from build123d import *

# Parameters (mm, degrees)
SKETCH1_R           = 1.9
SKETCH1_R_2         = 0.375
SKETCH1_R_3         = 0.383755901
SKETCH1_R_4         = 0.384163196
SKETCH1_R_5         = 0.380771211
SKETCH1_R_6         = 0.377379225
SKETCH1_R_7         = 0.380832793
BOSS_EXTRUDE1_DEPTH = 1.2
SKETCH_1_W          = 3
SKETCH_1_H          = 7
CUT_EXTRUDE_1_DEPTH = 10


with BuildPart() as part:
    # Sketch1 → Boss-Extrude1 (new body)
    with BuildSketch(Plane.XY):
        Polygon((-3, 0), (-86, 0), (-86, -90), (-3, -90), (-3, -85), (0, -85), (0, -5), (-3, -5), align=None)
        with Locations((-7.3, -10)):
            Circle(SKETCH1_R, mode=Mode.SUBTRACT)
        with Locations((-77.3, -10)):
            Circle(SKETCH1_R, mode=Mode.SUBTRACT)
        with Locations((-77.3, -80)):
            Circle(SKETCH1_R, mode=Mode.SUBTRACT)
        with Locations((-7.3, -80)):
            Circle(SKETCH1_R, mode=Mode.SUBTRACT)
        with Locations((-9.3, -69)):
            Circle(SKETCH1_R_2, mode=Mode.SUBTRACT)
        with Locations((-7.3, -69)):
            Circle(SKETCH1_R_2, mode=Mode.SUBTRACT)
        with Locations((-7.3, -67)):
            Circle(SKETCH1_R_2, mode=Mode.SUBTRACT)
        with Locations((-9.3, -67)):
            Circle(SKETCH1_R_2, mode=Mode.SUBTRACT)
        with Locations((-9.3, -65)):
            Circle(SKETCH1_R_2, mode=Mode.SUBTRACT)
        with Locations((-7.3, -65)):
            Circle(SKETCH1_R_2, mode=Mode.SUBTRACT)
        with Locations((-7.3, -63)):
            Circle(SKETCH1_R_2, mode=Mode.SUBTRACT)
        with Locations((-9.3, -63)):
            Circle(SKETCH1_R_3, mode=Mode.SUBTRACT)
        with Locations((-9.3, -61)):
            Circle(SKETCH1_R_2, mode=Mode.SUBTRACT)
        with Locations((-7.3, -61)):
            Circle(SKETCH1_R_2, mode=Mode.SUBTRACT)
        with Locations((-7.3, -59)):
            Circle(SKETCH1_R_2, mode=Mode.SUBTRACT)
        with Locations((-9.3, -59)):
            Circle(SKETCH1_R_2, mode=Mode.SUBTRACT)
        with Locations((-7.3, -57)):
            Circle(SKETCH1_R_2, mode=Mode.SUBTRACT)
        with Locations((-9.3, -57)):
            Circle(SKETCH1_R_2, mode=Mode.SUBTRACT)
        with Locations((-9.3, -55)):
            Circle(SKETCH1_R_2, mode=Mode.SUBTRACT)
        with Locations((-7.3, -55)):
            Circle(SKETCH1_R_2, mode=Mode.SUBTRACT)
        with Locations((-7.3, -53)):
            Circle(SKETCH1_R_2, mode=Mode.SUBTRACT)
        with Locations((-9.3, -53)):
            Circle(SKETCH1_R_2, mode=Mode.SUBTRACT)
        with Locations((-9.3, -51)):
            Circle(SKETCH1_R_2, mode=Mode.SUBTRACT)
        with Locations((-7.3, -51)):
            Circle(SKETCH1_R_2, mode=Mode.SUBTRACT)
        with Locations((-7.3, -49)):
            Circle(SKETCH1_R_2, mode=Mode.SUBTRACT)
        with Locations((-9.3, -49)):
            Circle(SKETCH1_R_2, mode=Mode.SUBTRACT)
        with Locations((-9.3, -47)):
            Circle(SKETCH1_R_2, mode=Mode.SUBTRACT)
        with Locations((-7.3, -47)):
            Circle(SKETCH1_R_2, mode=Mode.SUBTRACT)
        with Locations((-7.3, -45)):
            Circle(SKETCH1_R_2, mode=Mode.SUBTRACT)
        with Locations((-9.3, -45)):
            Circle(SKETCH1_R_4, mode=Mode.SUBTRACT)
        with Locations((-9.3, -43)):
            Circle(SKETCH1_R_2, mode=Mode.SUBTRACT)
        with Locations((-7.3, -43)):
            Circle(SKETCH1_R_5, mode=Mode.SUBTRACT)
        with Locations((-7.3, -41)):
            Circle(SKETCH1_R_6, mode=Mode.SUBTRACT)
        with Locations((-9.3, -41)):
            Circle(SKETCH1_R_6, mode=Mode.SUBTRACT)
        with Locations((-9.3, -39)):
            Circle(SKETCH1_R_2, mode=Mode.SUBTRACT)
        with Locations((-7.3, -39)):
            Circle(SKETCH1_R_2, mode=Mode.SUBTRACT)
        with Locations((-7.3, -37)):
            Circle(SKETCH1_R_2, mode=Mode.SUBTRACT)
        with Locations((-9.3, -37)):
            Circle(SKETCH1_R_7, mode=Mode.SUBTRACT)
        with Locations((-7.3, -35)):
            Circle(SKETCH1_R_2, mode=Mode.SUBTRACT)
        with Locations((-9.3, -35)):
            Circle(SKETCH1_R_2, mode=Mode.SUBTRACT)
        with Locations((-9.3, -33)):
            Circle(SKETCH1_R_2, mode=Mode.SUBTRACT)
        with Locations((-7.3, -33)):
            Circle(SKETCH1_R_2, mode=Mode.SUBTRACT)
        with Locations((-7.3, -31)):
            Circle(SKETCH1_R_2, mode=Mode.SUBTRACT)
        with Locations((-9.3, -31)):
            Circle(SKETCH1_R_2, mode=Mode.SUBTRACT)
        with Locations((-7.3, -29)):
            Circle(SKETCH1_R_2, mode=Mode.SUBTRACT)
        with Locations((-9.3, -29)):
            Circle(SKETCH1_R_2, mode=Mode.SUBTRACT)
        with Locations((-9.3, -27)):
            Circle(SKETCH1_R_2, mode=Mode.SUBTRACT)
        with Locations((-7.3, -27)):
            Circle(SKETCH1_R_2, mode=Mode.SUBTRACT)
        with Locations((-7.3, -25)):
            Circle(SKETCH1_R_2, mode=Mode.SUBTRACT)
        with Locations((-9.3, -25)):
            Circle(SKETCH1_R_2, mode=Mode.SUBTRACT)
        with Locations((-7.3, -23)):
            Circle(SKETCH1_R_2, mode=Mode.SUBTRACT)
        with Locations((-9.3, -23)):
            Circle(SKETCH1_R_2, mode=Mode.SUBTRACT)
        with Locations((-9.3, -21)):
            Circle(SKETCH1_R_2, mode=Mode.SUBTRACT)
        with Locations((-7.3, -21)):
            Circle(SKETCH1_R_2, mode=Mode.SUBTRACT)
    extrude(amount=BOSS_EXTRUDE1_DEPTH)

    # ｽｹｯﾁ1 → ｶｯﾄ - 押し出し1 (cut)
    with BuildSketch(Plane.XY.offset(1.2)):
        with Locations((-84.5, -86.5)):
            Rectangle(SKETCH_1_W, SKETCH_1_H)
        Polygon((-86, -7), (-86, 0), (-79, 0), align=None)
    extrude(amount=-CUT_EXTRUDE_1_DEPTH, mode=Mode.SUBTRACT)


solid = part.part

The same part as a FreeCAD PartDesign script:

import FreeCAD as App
import Part
import Sketcher

V = App.Vector


def add_polygon(sketch, points):
    """Adds a closed chain of lines whose ends are joined by coincident constraints."""
    first, n = sketch.GeometryCount, len(points)
    for a, b in zip(points, points[1:] + points[:1]):
        sketch.addGeometry(Part.LineSegment(App.Vector(*a, 0), App.Vector(*b, 0)), False)
    for i in range(n):
        sketch.addConstraint(Sketcher.Constraint("Coincident", first + i, 2, first + (i + 1) % n, 1))

doc = App.newDocument("Part")
body = doc.addObject("PartDesign::Body", "Body")

sketch1 = body.newObject("Sketcher::SketchObject", "Sketch")
sketch1.AttachmentSupport = (doc.getObject("XY_Plane"), [""])
sketch1.MapMode = "FlatFace"
add_polygon(sketch1, [(-3, 0), (-86, 0), (-86, -90), (-3, -90), (-3, -85), (0, -85), (0, -5), (-3, -5)])
sketch1.addGeometry(Part.Circle(V(-77.3, -80, 0), V(0, 0, 1), 1.9), False)
sketch1.addGeometry(Part.Circle(V(-7.3, -80, 0), V(0, 0, 1), 1.9), False)
sketch1.addGeometry(Part.Circle(V(-9.3, -69, 0), V(0, 0, 1), 0.38), False)
sketch1.addGeometry(Part.Circle(V(-7.3, -69, 0), V(0, 0, 1), 0.38), False)
sketch1.addGeometry(Part.Circle(V(-9.3, -67, 0), V(0, 0, 1), 0.38), False)
sketch1.addGeometry(Part.Circle(V(-7.3, -67, 0), V(0, 0, 1), 0.38), False)
sketch1.addGeometry(Part.Circle(V(-9.3, -65, 0), V(0, 0, 1), 0.38), False)
sketch1.addGeometry(Part.Circle(V(-7.3, -65, 0), V(0, 0, 1), 0.38), False)
sketch1.addGeometry(Part.Circle(V(-9.3, -63, 0), V(0, 0, 1), 0.38), False)
sketch1.addGeometry(Part.Circle(V(-7.3, -63, 0), V(0, 0, 1), 0.38), False)
sketch1.addGeometry(Part.Circle(V(-9.3, -61, 0), V(0, 0, 1), 0.38), False)
sketch1.addGeometry(Part.Circle(V(-9.3, -59, 0), V(0, 0, 1), 0.38), False)
sketch1.addGeometry(Part.Circle(V(-7.3, -61, 0), V(0, 0, 1), 0.38), False)
sketch1.addGeometry(Part.Circle(V(-7.3, -59, 0), V(0, 0, 1), 0.38), False)
sketch1.addGeometry(Part.Circle(V(-9.3, -57, 0), V(0, 0, 1), 0.38), False)
sketch1.addGeometry(Part.Circle(V(-7.3, -57, 0), V(0, 0, 1), 0.38), False)
sketch1.addGeometry(Part.Circle(V(-9.3, -55, 0), V(0, 0, 1), 0.38), False)
sketch1.addGeometry(Part.Circle(V(-7.3, -55, 0), V(0, 0, 1), 0.38), False)
sketch1.addGeometry(Part.Circle(V(-9.3, -53, 0), V(0, 0, 1), 0.38), False)
sketch1.addGeometry(Part.Circle(V(-7.3, -53, 0), V(0, 0, 1), 0.38), False)
sketch1.addGeometry(Part.Circle(V(-9.3, -51, 0), V(0, 0, 1), 0.38), False)
sketch1.addGeometry(Part.Circle(V(-7.3, -51, 0), V(0, 0, 1), 0.38), False)
sketch1.addGeometry(Part.Circle(V(-9.3, -49, 0), V(0, 0, 1), 0.38), False)
sketch1.addGeometry(Part.Circle(V(-7.3, -49, 0), V(0, 0, 1), 0.38), False)
sketch1.addGeometry(Part.Circle(V(-9.3, -47, 0), V(0, 0, 1), 0.38), False)
sketch1.addGeometry(Part.Circle(V(-7.3, -47, 0), V(0, 0, 1), 0.38), False)
sketch1.addGeometry(Part.Circle(V(-77.3, -10, 0), V(0, 0, 1), 1.9), False)
sketch1.addGeometry(Part.Circle(V(-9.3, -45, 0), V(0, 0, 1), 0.38), False)
sketch1.addGeometry(Part.Circle(V(-9.3, -43, 0), V(0, 0, 1), 0.38), False)
sketch1.addGeometry(Part.Circle(V(-7.3, -45, 0), V(0, 0, 1), 0.38), False)
sketch1.addGeometry(Part.Circle(V(-7.3, -43, 0), V(0, 0, 1), 0.38), False)
sketch1.addGeometry(Part.Circle(V(-9.3, -41, 0), V(0, 0, 1), 0.38), False)
sketch1.addGeometry(Part.Circle(V(-7.3, -41, 0), V(0, 0, 1), 0.38), False)
sketch1.addGeometry(Part.Circle(V(-9.3, -39, 0), V(0, 0, 1), 0.38), False)
sketch1.addGeometry(Part.Circle(V(-7.3, -39, 0), V(0, 0, 1), 0.38), False)
sketch1.addGeometry(Part.Circle(V(-9.3, -37, 0), V(0, 0, 1), 0.38), False)
sketch1.addGeometry(Part.Circle(V(-7.3, -37, 0), V(0, 0, 1), 0.38), False)
sketch1.addGeometry(Part.Circle(V(-9.3, -35, 0), V(0, 0, 1), 0.38), False)
sketch1.addGeometry(Part.Circle(V(-7.3, -35, 0), V(0, 0, 1), 0.38), False)
sketch1.addGeometry(Part.Circle(V(-9.3, -33, 0), V(0, 0, 1), 0.38), False)
sketch1.addGeometry(Part.Circle(V(-7.3, -33, 0), V(0, 0, 1), 0.38), False)
sketch1.addGeometry(Part.Circle(V(-9.3, -31, 0), V(0, 0, 1), 0.38), False)
sketch1.addGeometry(Part.Circle(V(-9.3, -29, 0), V(0, 0, 1), 0.38), False)
sketch1.addGeometry(Part.Circle(V(-7.3, -31, 0), V(0, 0, 1), 0.38), False)
sketch1.addGeometry(Part.Circle(V(-7.3, -29, 0), V(0, 0, 1), 0.38), False)
sketch1.addGeometry(Part.Circle(V(-9.3, -27, 0), V(0, 0, 1), 0.38), False)
sketch1.addGeometry(Part.Circle(V(-7.3, -27, 0), V(0, 0, 1), 0.38), False)
sketch1.addGeometry(Part.Circle(V(-9.3, -25, 0), V(0, 0, 1), 0.38), False)
sketch1.addGeometry(Part.Circle(V(-7.3, -25, 0), V(0, 0, 1), 0.38), False)
sketch1.addGeometry(Part.Circle(V(-9.3, -23, 0), V(0, 0, 1), 0.38), False)
sketch1.addGeometry(Part.Circle(V(-7.3, -23, 0), V(0, 0, 1), 0.38), False)
sketch1.addGeometry(Part.Circle(V(-9.3, -21, 0), V(0, 0, 1), 0.38), False)
sketch1.addGeometry(Part.Circle(V(-7.3, -21, 0), V(0, 0, 1), 0.38), False)
sketch1.addGeometry(Part.Circle(V(-7.3, -10, 0), V(0, 0, 1), 1.9), False)
sketch1.addConstraint([
    Sketcher.Constraint("Horizontal", 0),
    Sketcher.Constraint("Vertical", 1),
    Sketcher.Constraint("Horizontal", 2),
    Sketcher.Constraint("Vertical", 3),
    Sketcher.Constraint("Horizontal", 4),
    Sketcher.Constraint("Vertical", 5),
    Sketcher.Constraint("Horizontal", 6),
    Sketcher.Constraint("Vertical", 7),
    Sketcher.Constraint("Equal", 8, 9),
    Sketcher.Constraint("Equal", 10, 11),
    Sketcher.Constraint("Equal", 11, 12),
    Sketcher.Constraint("Equal", 12, 13),
    Sketcher.Constraint("Equal", 13, 14),
    Sketcher.Constraint("Equal", 14, 15),
    Sketcher.Constraint("Equal", 15, 17),
    Sketcher.Constraint("Equal", 17, 18),
    Sketcher.Constraint("Equal", 18, 19),
    Sketcher.Constraint("Equal", 19, 20),
    Sketcher.Constraint("Equal", 20, 21),
    Sketcher.Constraint("Equal", 21, 22),
    Sketcher.Constraint("Equal", 22, 23),
    Sketcher.Constraint("Equal", 23, 24),
    Sketcher.Constraint("Equal", 24, 25),
    Sketcher.Constraint("Equal", 25, 26),
    Sketcher.Constraint("Equal", 26, 27),
    Sketcher.Constraint("Equal", 27, 28),
    Sketcher.Constraint("Equal", 28, 29),
    Sketcher.Constraint("Equal", 29, 30),
    Sketcher.Constraint("Equal", 30, 31),
    Sketcher.Constraint("Equal", 31, 32),
    Sketcher.Constraint("Equal", 32, 33),
    Sketcher.Constraint("Equal", 9, 34),
    Sketcher.Constraint("Equal", 33, 36),
    Sketcher.Constraint("Equal", 36, 37),
    Sketcher.Constraint("Equal", 39, 40),
    Sketcher.Constraint("Equal", 37, 41),
    Sketcher.Constraint("Equal", 41, 42),
    Sketcher.Constraint("Equal", 42, 44),
    Sketcher.Constraint("Equal", 44, 45),
    Sketcher.Constraint("Equal", 45, 46),
    Sketcher.Constraint("Equal", 46, 47),
    Sketcher.Constraint("Equal", 47, 48),
    Sketcher.Constraint("Equal", 48, 49),
    Sketcher.Constraint("Equal", 49, 50),
    Sketcher.Constraint("Equal", 50, 51),
    Sketcher.Constraint("Equal", 51, 52),
    Sketcher.Constraint("Equal", 52, 53),
    Sketcher.Constraint("Equal", 53, 54),
    Sketcher.Constraint("Equal", 54, 55),
    Sketcher.Constraint("Equal", 55, 56),
    Sketcher.Constraint("Equal", 56, 57),
    Sketcher.Constraint("Equal", 57, 58),
    Sketcher.Constraint("Equal", 58, 59),
    Sketcher.Constraint("Equal", 59, 60),
    Sketcher.Constraint("Equal", 34, 61),
    Sketcher.Constraint("PointOnObject", 0, 2, -1),
    Sketcher.Constraint("PointOnObject", 4, 2, -2),
    Sketcher.Constraint("Horizontal", 8, 3, 9, 3),
    Sketcher.Constraint("Horizontal", 10, 3, 11, 3),
    Sketcher.Constraint("Horizontal", 12, 3, 13, 3),
    Sketcher.Constraint("Horizontal", 14, 3, 15, 3),
    Sketcher.Constraint("Horizontal", 16, 3, 17, 3),
    Sketcher.Constraint("Horizontal", 18, 3, 20, 3),
    Sketcher.Constraint("Horizontal", 19, 3, 21, 3),
    Sketcher.Constraint("Horizontal", 22, 3, 23, 3),
    Sketcher.Constraint("Horizontal", 24, 3, 25, 3),
    Sketcher.Constraint("Horizontal", 26, 3, 27, 3),
    Sketcher.Constraint("Horizontal", 28, 3, 29, 3),
    Sketcher.Constraint("Horizontal", 30, 3, 31, 3),
    Sketcher.Constraint("Horizontal", 32, 3, 33, 3),
    Sketcher.Constraint("Horizontal", 35, 3, 37, 3),
    Sketcher.Constraint("Horizontal", 36, 3, 38, 3),
    Sketcher.Constraint("Horizontal", 39, 3, 40, 3),
    Sketcher.Constraint("Horizontal", 41, 3, 42, 3),
    Sketcher.Constraint("Horizontal", 43, 3, 44, 3),
    Sketcher.Constraint("Horizontal", 45, 3, 46, 3),
    Sketcher.Constraint("Horizontal", 47, 3, 48, 3),
    Sketcher.Constraint("Horizontal", 49, 3, 51, 3),
    Sketcher.Constraint("Horizontal", 50, 3, 52, 3),
    Sketcher.Constraint("Horizontal", 53, 3, 54, 3),
    Sketcher.Constraint("Horizontal", 55, 3, 56, 3),
    Sketcher.Constraint("Horizontal", 57, 3, 58, 3),
    Sketcher.Constraint("Horizontal", 59, 3, 60, 3),
    Sketcher.Constraint("Horizontal", 34, 3, 61, 3),
    Sketcher.Constraint("Vertical", 9, 3, 11, 3),
    Sketcher.Constraint("Vertical", 10, 3, 12, 3),
    Sketcher.Constraint("Vertical", 11, 3, 13, 3),
    Sketcher.Constraint("Vertical", 12, 3, 14, 3),
    Sketcher.Constraint("Vertical", 13, 3, 15, 3),
    Sketcher.Constraint("Vertical", 14, 3, 16, 3),
    Sketcher.Constraint("Vertical", 15, 3, 17, 3),
    Sketcher.Constraint("Vertical", 16, 3, 18, 3),
    Sketcher.Constraint("Vertical", 18, 3, 19, 3),
    Sketcher.Constraint("Vertical", 17, 3, 20, 3),
    Sketcher.Constraint("Vertical", 20, 3, 21, 3),
    Sketcher.Constraint("Vertical", 19, 3, 22, 3),
    Sketcher.Constraint("Vertical", 21, 3, 23, 3),
    Sketcher.Constraint("Vertical", 22, 3, 24, 3),
    Sketcher.Constraint("Vertical", 23, 3, 25, 3),
    Sketcher.Constraint("Vertical", 24, 3, 26, 3),
    Sketcher.Constraint("Vertical", 25, 3, 27, 3),
    Sketcher.Constraint("Vertical", 26, 3, 28, 3),
    Sketcher.Constraint("Vertical", 27, 3, 29, 3),
    Sketcher.Constraint("Vertical", 28, 3, 30, 3),
    Sketcher.Constraint("Vertical", 29, 3, 31, 3),
    Sketcher.Constraint("Vertical", 30, 3, 32, 3),
    Sketcher.Constraint("Vertical", 31, 3, 33, 3),
    Sketcher.Constraint("Vertical", 8, 3, 34, 3),
    Sketcher.Constraint("Vertical", 32, 3, 35, 3),
    Sketcher.Constraint("Vertical", 35, 3, 36, 3),
    Sketcher.Constraint("Vertical", 33, 3, 37, 3),
    Sketcher.Constraint("Vertical", 37, 3, 38, 3),
    Sketcher.Constraint("Vertical", 36, 3, 39, 3),
    Sketcher.Constraint("Vertical", 38, 3, 40, 3),
    Sketcher.Constraint("Vertical", 39, 3, 41, 3),
    Sketcher.Constraint("Vertical", 40, 3, 42, 3),
    Sketcher.Constraint("Vertical", 41, 3, 43, 3),
    Sketcher.Constraint("Vertical", 42, 3, 44, 3),
    Sketcher.Constraint("Vertical", 43, 3, 45, 3),
    Sketcher.Constraint("Vertical", 44, 3, 46, 3),
    Sketcher.Constraint("Vertical", 45, 3, 47, 3),
    Sketcher.Constraint("Vertical", 46, 3, 48, 3),
    Sketcher.Constraint("Vertical", 47, 3, 49, 3),
    Sketcher.Constraint("Vertical", 49, 3, 50, 3),
    Sketcher.Constraint("Vertical", 48, 3, 51, 3),
    Sketcher.Constraint("Vertical", 51, 3, 52, 3),
    Sketcher.Constraint("Vertical", 50, 3, 53, 3),
    Sketcher.Constraint("Vertical", 52, 3, 54, 3),
    Sketcher.Constraint("Vertical", 53, 3, 55, 3),
    Sketcher.Constraint("Vertical", 54, 3, 56, 3),
    Sketcher.Constraint("Vertical", 55, 3, 57, 3),
    Sketcher.Constraint("Vertical", 56, 3, 58, 3),
    Sketcher.Constraint("Vertical", 57, 3, 59, 3),
    Sketcher.Constraint("Vertical", 58, 3, 60, 3),
    Sketcher.Constraint("Vertical", 60, 3, 61, 3),
    Sketcher.Constraint("Vertical", 3, 2, 6, 2),
    Sketcher.Constraint("Equal", 3, 7),
    Sketcher.Constraint("Diameter", 8, 3.8),
    Sketcher.Constraint("Diameter", 10, 0.75),
    Sketcher.Constraint("DistanceX", 0, 2, 0, 1, 83.0),
    Sketcher.Constraint("DistanceX", 4, 1, 4, 2, 3.0),
    Sketcher.Constraint("DistanceY", 1, 2, 1, 1, 90.0),
    Sketcher.Constraint("DistanceY", 3, 1, 3, 2, 5.0),
    Sketcher.Constraint("DistanceY", 8, 3, -1, 1, 80.0),
    Sketcher.Constraint("DistanceY", 10, 3, -1, 1, 69.0),
    Sketcher.Constraint("DistanceY", 12, 3, -1, 1, 67.0),
    Sketcher.Constraint("DistanceY", 14, 3, -1, 1, 65.0),
    Sketcher.Constraint("DistanceY", 16, 3, -1, 1, 63.0),
    Sketcher.Constraint("DistanceY", 18, 3, -1, 1, 61.0),
    Sketcher.Constraint("DistanceY", 19, 3, -1, 1, 59.0),
    Sketcher.Constraint("DistanceY", 22, 3, -1, 1, 57.0),
    Sketcher.Constraint("DistanceY", 24, 3, -1, 1, 55.0),
    Sketcher.Constraint("DistanceY", 26, 3, -1, 1, 53.0),
    Sketcher.Constraint("DistanceY", 28, 3, -1, 1, 51.0),
    Sketcher.Constraint("DistanceY", 30, 3, -1, 1, 49.0),
    Sketcher.Constraint("DistanceY", 32, 3, -1, 1, 47.0),
    Sketcher.Constraint("DistanceY", 34, 3, -1, 1, 10.0),
    Sketcher.Constraint("DistanceY", 35, 3, -1, 1, 45.0),
    Sketcher.Constraint("DistanceY", 36, 3, -1, 1, 43.0),
    Sketcher.Constraint("DistanceY", 39, 3, -1, 1, 41.0),
    Sketcher.Constraint("DistanceY", 41, 3, -1, 1, 39.0),
    Sketcher.Constraint("DistanceY", 43, 3, -1, 1, 37.0),
    Sketcher.Constraint("DistanceY", 45, 3, -1, 1, 35.0),
    Sketcher.Constraint("DistanceY", 47, 3, -1, 1, 33.0),
    Sketcher.Constraint("DistanceY", 49, 3, -1, 1, 31.0),
    Sketcher.Constraint("DistanceY", 50, 3, -1, 1, 29.0),
    Sketcher.Constraint("DistanceY", 53, 3, -1, 1, 27.0),
    Sketcher.Constraint("DistanceY", 55, 3, -1, 1, 25.0),
    Sketcher.Constraint("DistanceY", 57, 3, -1, 1, 23.0),
    Sketcher.Constraint("DistanceY", 59, 3, -1, 1, 21.0),
    Sketcher.Constraint("DistanceX", 8, 3, -1, 1, 77.3),
    Sketcher.Constraint("DistanceX", 9, 3, -1, 1, 7.3),
    Sketcher.Constraint("DistanceX", 10, 3, -1, 1, 9.3),
    Sketcher.Constraint("Diameter", 16, 0.767512),
    Sketcher.Constraint("Diameter", 39, 0.754758),
    Sketcher.Constraint("Diameter", 35, 0.768326),
    Sketcher.Constraint("Diameter", 38, 0.761542),
    Sketcher.Constraint("Diameter", 43, 0.761666),
])
pad1 = body.newObject("PartDesign::Pad", "Pad")
pad1.Profile = sketch1
pad1.Length = 1.2

sketch2 = body.newObject("Sketcher::SketchObject", "Sketch001")
sketch2.AttachmentSupport = (doc.getObject("XY_Plane"), [""])
sketch2.MapMode = "FlatFace"
sketch2.AttachmentOffset = App.Placement(V(0, 0, 1.2), App.Rotation())
add_polygon(sketch2, [(-86, -83), (-86, -90), (-83, -90), (-83, -83)])
add_polygon(sketch2, [(-86, 0), (-86, -7), (-79, 0)])
sketch2.addConstraint([
    Sketcher.Constraint("Vertical", 0),
    Sketcher.Constraint("Horizontal", 1),
    Sketcher.Constraint("Vertical", 2),
    Sketcher.Constraint("Horizontal", 3),
    Sketcher.Constraint("Vertical", 4),
    Sketcher.Constraint("Horizontal", 6),
    Sketcher.Constraint("PointOnObject", 5, 2, -1),
    Sketcher.Constraint("Vertical", 3, 2, 4, 2),
    Sketcher.Constraint("Equal", 6, 0),
    Sketcher.Constraint("Equal", 2, 4),
    Sketcher.Constraint("DistanceX", 1, 1, 1, 2, 3.0),
    Sketcher.Constraint("DistanceX", 6, 2, 6, 1, 7.0),
    Sketcher.Constraint("DistanceX", 0, 2, -1, 1, 86.0),
    Sketcher.Constraint("DistanceY", 0, 2, -1, 1, 90.0),
])
pocket1 = body.newObject("PartDesign::Pocket", "Pocket")
pocket1.Profile = sketch2
pocket1.Length = 10

doc.recompute()
